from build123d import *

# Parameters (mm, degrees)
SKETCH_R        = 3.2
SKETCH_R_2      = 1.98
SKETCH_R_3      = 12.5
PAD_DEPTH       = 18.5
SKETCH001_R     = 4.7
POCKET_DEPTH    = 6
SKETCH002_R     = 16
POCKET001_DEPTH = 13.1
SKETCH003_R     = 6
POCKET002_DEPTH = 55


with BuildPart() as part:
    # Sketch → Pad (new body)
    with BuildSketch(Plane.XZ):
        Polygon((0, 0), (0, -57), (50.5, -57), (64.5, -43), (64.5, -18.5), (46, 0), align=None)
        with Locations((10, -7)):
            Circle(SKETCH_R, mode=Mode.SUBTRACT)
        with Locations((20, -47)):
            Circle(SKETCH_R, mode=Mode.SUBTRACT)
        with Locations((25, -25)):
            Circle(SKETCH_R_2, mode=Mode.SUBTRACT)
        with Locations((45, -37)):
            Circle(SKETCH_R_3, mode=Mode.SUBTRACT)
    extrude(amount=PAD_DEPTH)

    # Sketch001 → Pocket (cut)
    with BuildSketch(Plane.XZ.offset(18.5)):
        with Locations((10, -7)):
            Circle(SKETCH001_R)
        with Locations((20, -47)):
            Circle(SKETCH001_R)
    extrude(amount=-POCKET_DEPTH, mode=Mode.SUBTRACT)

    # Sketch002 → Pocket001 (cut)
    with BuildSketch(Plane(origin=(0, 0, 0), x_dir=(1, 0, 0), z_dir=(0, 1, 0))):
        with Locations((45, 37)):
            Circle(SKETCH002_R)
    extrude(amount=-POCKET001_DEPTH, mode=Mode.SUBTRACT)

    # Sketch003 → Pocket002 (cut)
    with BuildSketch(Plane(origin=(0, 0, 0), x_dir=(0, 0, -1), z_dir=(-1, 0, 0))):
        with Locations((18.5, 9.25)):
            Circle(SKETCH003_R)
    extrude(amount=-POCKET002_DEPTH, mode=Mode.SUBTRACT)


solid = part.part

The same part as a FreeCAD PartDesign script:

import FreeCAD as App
import Part
import Sketcher

V = App.Vector
Q = App.Units.Quantity

doc = App.newDocument("Part")
body = doc.addObject("PartDesign::Body", "Body")

# Sketch on XZ plane
sketch1 = body.newObject("Sketcher::SketchObject", "Sketch")
sketch1.AttachmentSupport = (doc.getObject("XZ_Plane"), [""])
sketch1.MapMode = "FlatFace"
sketch1.addGeometry([
    Part.LineSegment(V(0, 0, 0), V(0, -57, 0)),  # 0
    Part.LineSegment(V(0, -57, 0), V(50.5, -57, 0)),  # 1
    Part.LineSegment(V(50.5, -57, 0), V(64.5, -43, 0)),  # 2
    Part.LineSegment(V(64.5, -43, 0), V(64.5, -18.5, 0)),  # 3
    Part.LineSegment(V(64.5, -18.5, 0), V(46, 0, 0)),  # 4
    Part.LineSegment(V(46, 0, 0), V(0, 0, 0)),  # 5
    Part.Circle(V(20, -47, 0), V(0, 0, 1), 3.2),  # 6
    Part.Circle(V(45, -37, 0), V(0, 0, 1), 12.5),  # 7
    Part.Circle(V(25, -25, 0), V(0, 0, 1), 2),  # 8
    Part.Circle(V(10, -7, 0), V(0, 0, 1), 3.2),  # 9
], False)
sketch1.addConstraint([
    Sketcher.Constraint("Coincident", 0, 2, 1, 1),
    Sketcher.Constraint("Coincident", 1, 2, 2, 1),
    Sketcher.Constraint("Coincident", 2, 2, 3, 1),
    Sketcher.Constraint("Coincident", 3, 2, 4, 1),
    Sketcher.Constraint("Coincident", 4, 2, 5, 1),
    Sketcher.Constraint("Coincident", 5, 2, 0, 1),
    Sketcher.Constraint("Vertical", 0),
    Sketcher.Constraint("Horizontal", 1),
    Sketcher.Constraint("Vertical", 3),
    Sketcher.Constraint("Horizontal", 5),
    Sketcher.Constraint("Coincident", 5, 2, -1, 1),
    Sketcher.Constraint("Equal", 6, 9),
    Sketcher.Constraint("Perpendicular", 2, 4),
    Sketcher.Constraint("Diameter", 7, Q("25 mm")),
    Sketcher.Constraint("Diameter", 6, Q("6.4 mm")),
    Sketcher.Constraint("Diameter", 8, Q("3.96 mm")),
    Sketcher.Constraint("DistanceX", 5, 2, 5, 1, Q("46 mm")),
    Sketcher.Constraint("DistanceY", 0, 2, 0, 1, Q("57 mm")),
    Sketcher.Constraint("Angle", 2, Q("45 deg")),
    Sketcher.Constraint("DistanceX", 1, 1, 1, 2, Q("50.5 mm")),
    Sketcher.Constraint("DistanceY", 3, 1, 3, 2, Q("24.5 mm")),
    Sketcher.Constraint("DistanceX", -1, 1, 6, 3, Q("20 mm")),
    Sketcher.Constraint("DistanceY", 6, 3, -1, 1, Q("47 mm")),
    Sketcher.Constraint("DistanceX", -1, 1, 7, 3, Q("45 mm")),
    Sketcher.Constraint("DistanceY", 7, 3, -1, 1, Q("37 mm")),
    Sketcher.Constraint("DistanceX", -1, 1, 8, 3, Q("25 mm")),
    Sketcher.Constraint("DistanceY", 8, 3, -1, 1, Q("25 mm")),
    Sketcher.Constraint("DistanceX", -1, 1, 9, 3, Q("10 mm")),
    Sketcher.Constraint("DistanceY", 9, 3, -1, 1, Q("7 mm")),
])
pad1 = body.newObject("PartDesign::Pad", "Pad")
pad1.Profile = sketch1
pad1.Length = 18.5

# Sketch on XZ plane
sketch2 = body.newObject("Sketcher::SketchObject", "Sketch001")
sketch2.AttachmentSupport = (doc.getObject("XZ_Plane"), [""])
sketch2.MapMode = "FlatFace"
sketch2.AttachmentOffset = App.Placement(V(0, 0, 18.5), App.Rotation())
sketch2.addGeometry([
    Part.Circle(V(10, -7, 0), V(0, 0, 1), 4.7),
    Part.Circle(V(20, -47, 0), V(0, 0, 1), 4.7),
], False)
sketch2.addConstraint([
    Sketcher.Constraint("Equal", 0, 1),
    Sketcher.Constraint("Diameter", 0, Q("9.4 mm")),
    Sketcher.Constraint("DistanceX", -1, 1, 0, 3, Q("10 mm")),
    Sketcher.Constraint("DistanceY", 0, 3, -1, 1, Q("7 mm")),
    Sketcher.Constraint("DistanceX", -1, 1, 1, 3, Q("20 mm")),
    Sketcher.Constraint("DistanceY", 1, 3, -1, 1, Q("47 mm")),
])
pocket1 = body.newObject("PartDesign::Pocket", "Pocket")
pocket1.Profile = sketch2
pocket1.Length = 6

# Sketch on XZ plane
sketch3 = body.newObject("Sketcher::SketchObject", "Sketch002")
sketch3.AttachmentSupport = (doc.getObject("XZ_Plane"), [""])
sketch3.MapMode = "FlatFace"
sketch3.addGeometry(Part.Circle(V(45, -37, 0), V(0, 0, 1), 16), False)
sketch3.addConstraint([
    Sketcher.Constraint("Diameter", 0, Q("32 mm")),
    Sketcher.Constraint("DistanceX", -1, 1, 0, 3, Q("45 mm")),
    Sketcher.Constraint("DistanceY", 0, 3, -1, 1, Q("37 mm")),
])
pocket2 = body.newObject("PartDesign::Pocket", "Pocket001")
pocket2.Profile = sketch3
pocket2.Length = 13.1
pocket2.Reversed = True

# Sketch on YZ plane
sketch4 = body.newObject("Sketcher::SketchObject", "Sketch003")
sketch4.AttachmentSupport = (doc.getObject("YZ_Plane"), [""])
sketch4.MapMode = "FlatFace"
sketch4.addGeometry(Part.Circle(V(-9, -18, 0), V(0, 0, 1), 6), False)
sketch4.addConstraint([
    Sketcher.Constraint("Diameter", 0, Q("12 mm")),
    Sketcher.Constraint("DistanceY", 0, 3, -1, 1, Q("18.5 mm")),
    Sketcher.Constraint("DistanceX", 0, 3, -1, 1, Q("9.25 mm")),
])
pocket3 = body.newObject("PartDesign::Pocket", "Pocket002")
pocket3.Profile = sketch4
pocket3.Length = 55
pocket3.Reversed = True

doc.recompute()
